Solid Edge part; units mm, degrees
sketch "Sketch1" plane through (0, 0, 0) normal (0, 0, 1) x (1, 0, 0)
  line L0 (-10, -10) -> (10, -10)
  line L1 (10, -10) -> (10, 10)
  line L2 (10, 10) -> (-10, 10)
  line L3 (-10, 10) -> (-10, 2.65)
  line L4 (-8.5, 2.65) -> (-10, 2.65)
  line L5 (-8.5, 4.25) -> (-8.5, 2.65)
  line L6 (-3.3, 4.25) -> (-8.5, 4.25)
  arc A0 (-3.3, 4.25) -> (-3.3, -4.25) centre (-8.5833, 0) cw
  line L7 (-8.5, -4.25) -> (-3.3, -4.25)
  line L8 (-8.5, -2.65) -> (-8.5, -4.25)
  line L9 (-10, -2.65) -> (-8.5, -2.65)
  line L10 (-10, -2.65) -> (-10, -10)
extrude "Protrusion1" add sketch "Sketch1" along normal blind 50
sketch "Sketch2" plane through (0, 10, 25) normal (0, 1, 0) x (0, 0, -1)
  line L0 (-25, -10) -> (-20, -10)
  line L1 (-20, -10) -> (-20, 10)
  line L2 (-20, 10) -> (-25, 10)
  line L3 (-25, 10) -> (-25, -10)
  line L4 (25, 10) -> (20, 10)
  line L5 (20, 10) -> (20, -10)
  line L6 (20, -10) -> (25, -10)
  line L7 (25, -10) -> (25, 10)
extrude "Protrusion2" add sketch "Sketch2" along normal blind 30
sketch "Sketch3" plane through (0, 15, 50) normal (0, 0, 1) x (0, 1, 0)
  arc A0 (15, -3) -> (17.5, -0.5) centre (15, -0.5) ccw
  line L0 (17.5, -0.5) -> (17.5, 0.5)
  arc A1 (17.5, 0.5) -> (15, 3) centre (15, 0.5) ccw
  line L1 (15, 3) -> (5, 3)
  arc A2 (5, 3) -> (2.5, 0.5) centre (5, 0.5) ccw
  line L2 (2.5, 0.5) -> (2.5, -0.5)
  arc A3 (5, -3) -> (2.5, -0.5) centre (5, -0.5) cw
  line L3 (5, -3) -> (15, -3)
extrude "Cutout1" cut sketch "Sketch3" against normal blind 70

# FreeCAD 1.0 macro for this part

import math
import FreeCAD as App
import Part
import Sketcher
from FreeCAD import Vector


def add_polygon(sketch, points):
    """Adds a closed chain of lines whose ends are joined by coincident constraints."""
    first, n = sketch.GeometryCount, len(points)
    for a, b in zip(points, points[1:] + points[:1]):
        sketch.addGeometry(Part.LineSegment(App.Vector(*a, 0), App.Vector(*b, 0)), False)
    for i in range(n):
        sketch.addConstraint(Sketcher.Constraint("Coincident", first + i, 2, first + (i + 1) % n, 1))

doc = App.newDocument("Part")
body = doc.addObject("PartDesign::Body", "Body")

sketch1 = doc.addObject("Sketcher::SketchObject", "Sketch")
body.addObject(sketch1)
sketch1.AttachmentSupport = (doc.XY_Plane, [""])
sketch1.MapMode = "FlatFace"
sketch1.addGeometry(Part.LineSegment(Vector(-10, -2.6, 0), Vector(-10, -10, 0)), False)
sketch1.addGeometry(Part.LineSegment(Vector(-10, -10, 0), Vector(10, -10, 0)), False)
sketch1.addGeometry(Part.LineSegment(Vector(10, -10, 0), Vector(10, 10, 0)), False)
sketch1.addGeometry(Part.LineSegment(Vector(10, 10, 0), Vector(-10, 10, 0)), False)
sketch1.addGeometry(Part.LineSegment(Vector(-10, 10, 0), Vector(-10, 2.6, 0)), False)
sketch1.addGeometry(Part.LineSegment(Vector(-10, 2.6, 0), Vector(-8.5, 2.6, 0)), False)
sketch1.addGeometry(Part.LineSegment(Vector(-8.5, 2.6, 0), Vector(-8.5, 4.2, 0)), False)
sketch1.addGeometry(Part.LineSegment(Vector(-8.5, 4.2, 0), Vector(-3.3, 4.2, 0)), False)
sketch1.addGeometry(Part.ArcOfCircle(Part.Circle(Vector(-8.6, 0, 0), Vector(0, 0, 1), 6.8), math.radians(-39), math.radians(39)), False)
sketch1.addGeometry(Part.LineSegment(Vector(-3.3, -4.2, 0), Vector(-8.5, -4.2, 0)), False)
sketch1.addGeometry(Part.LineSegment(Vector(-8.5, -4.2, 0), Vector(-8.5, -2.6, 0)), False)
sketch1.addGeometry(Part.LineSegment(Vector(-8.5, -2.6, 0), Vector(-10, -2.6, 0)), False)
sketch1.addConstraint(Sketcher.Constraint("Coincident", 0, 2, 1, 1))
sketch1.addConstraint(Sketcher.Constraint("Coincident", 1, 2, 2, 1))
sketch1.addConstraint(Sketcher.Constraint("Coincident", 2, 2, 3, 1))
sketch1.addConstraint(Sketcher.Constraint("Coincident", 3, 2, 4, 1))
sketch1.addConstraint(Sketcher.Constraint("Coincident", 4, 2, 5, 1))
sketch1.addConstraint(Sketcher.Constraint("Coincident", 5, 2, 6, 1))
sketch1.addConstraint(Sketcher.Constraint("Coincident", 6, 2, 7, 1))
sketch1.addConstraint(Sketcher.Constraint("Coincident", 7, 2, 8, 2))
sketch1.addConstraint(Sketcher.Constraint("Coincident", 8, 1, 9, 1))
sketch1.addConstraint(Sketcher.Constraint("Coincident", 9, 2, 10, 1))
sketch1.addConstraint(Sketcher.Constraint("Coincident", 10, 2, 11, 1))
sketch1.addConstraint(Sketcher.Constraint("Coincident", 11, 2, 0, 1))
sketch1.addConstraint(Sketcher.Constraint("Vertical", 0))
sketch1.addConstraint(Sketcher.Constraint("Horizontal", 1))
sketch1.addConstraint(Sketcher.Constraint("Vertical", 2))
sketch1.addConstraint(Sketcher.Constraint("Horizontal", 3))
sketch1.addConstraint(Sketcher.Constraint("Vertical", 4))
sketch1.addConstraint(Sketcher.Constraint("Horizontal", 5))
sketch1.addConstraint(Sketcher.Constraint("Vertical", 6))
sketch1.addConstraint(Sketcher.Constraint("Horizontal", 7))
sketch1.addConstraint(Sketcher.Constraint("Horizontal", 9))
sketch1.addConstraint(Sketcher.Constraint("Vertical", 10))
sketch1.addConstraint(Sketcher.Constraint("Horizontal", 11))
sketch1.addConstraint(Sketcher.Constraint("Symmetric", 0, 2, 2, 2, -1, 1))
sketch1.addConstraint(Sketcher.Constraint("Symmetric", 7, 2, 8, 1, -1))
sketch1.addConstraint(Sketcher.Constraint("Symmetric", 5, 2, 10, 2, -1))
sketch1.addConstraint(Sketcher.Constraint("Vertical", 0, 2, 3, 2))
sketch1.addConstraint(Sketcher.Constraint("Equal", 3, 2))
sketch1.addConstraint(Sketcher.Constraint("DistanceX", 1, 1, 1, 2, 20.0))
sketch1.addConstraint(Sketcher.Constraint("DistanceX", 5, 1, 5, 2, 1.5))
sketch1.addConstraint(Sketcher.Constraint("DistanceX", 7, 1, 7, 2, 5.2))
sketch1.addConstraint(Sketcher.Constraint("DistanceY", 6, 1, 6, 2, 1.6))
sketch1.addConstraint(Sketcher.Constraint("DistanceY", 0, 2, 0, 1, 7.35))
sketch1.addConstraint(Sketcher.Constraint("Radius", 8, 6.7805))
pad1 = doc.addObject("PartDesign::Pad", "Pad")
body.addObject(pad1)
pad1.Profile = sketch1
pad1.Length = 50

sketch2 = doc.addObject("Sketcher::SketchObject", "Sketch001")
body.addObject(sketch2)
sketch2.AttachmentSupport = (doc.XZ_Plane, [""])
sketch2.MapMode = "FlatFace"
sketch2.AttachmentOffset = App.Placement(Vector(0, 0, -10), App.Rotation())
add_polygon(sketch2, [(-10, 50), (10, 50), (10, 45), (-10, 45)])
add_polygon(sketch2, [(10, 0), (-10, 0), (-10, 5), (10, 5)])
sketch2.addConstraint(Sketcher.Constraint("Horizontal", 0))
sketch2.addConstraint(Sketcher.Constraint("Vertical", 1))
sketch2.addConstraint(Sketcher.Constraint("Horizontal", 2))
sketch2.addConstraint(Sketcher.Constraint("Vertical", 3))
sketch2.addConstraint(Sketcher.Constraint("Horizontal", 4))
sketch2.addConstraint(Sketcher.Constraint("Vertical", 5))
sketch2.addConstraint(Sketcher.Constraint("Horizontal", 6))
sketch2.addConstraint(Sketcher.Constraint("Vertical", 7))
sketch2.addConstraint(Sketcher.Constraint("Symmetric", 4, 2, 7, 2, -1, 1))
sketch2.addConstraint(Sketcher.Constraint("Vertical", 3, 2, 4, 2))
sketch2.addConstraint(Sketcher.Constraint("Vertical", 1, 2, 6, 2))
sketch2.addConstraint(Sketcher.Constraint("Equal", 3, 5))
sketch2.addConstraint(Sketcher.Constraint("DistanceX", 0, 1, 0, 2, 20.0))
sketch2.addConstraint(Sketcher.Constraint("DistanceY", 1, 2, 1, 1, 5.0))
sketch2.addConstraint(Sketcher.Constraint("DistanceY", -1, 1, 0, 2, 50.0))
pad2 = doc.addObject("PartDesign::Pad", "Pad001")
body.addObject(pad2)
pad2.Profile = sketch2
pad2.Length = 30
pad2.Reversed = True

sketch3 = doc.addObject("Sketcher::SketchObject", "Sketch002")
body.addObject(sketch3)
sketch3.AttachmentSupport = (doc.XY_Plane, [""])
sketch3.MapMode = "FlatFace"
sketch3.AttachmentOffset = App.Placement(Vector(0, 0, 50), App.Rotation())
sketch3.addGeometry(Part.LineSegment(Vector(3, 20, 0), Vector(3, 30, 0)), False)
sketch3.addGeometry(Part.ArcOfCircle(Part.Circle(Vector(0.5, 30, 0), Vector(0, 0, 1), 2.5), math.radians(0), math.radians(90)), False)
sketch3.addGeometry(Part.LineSegment(Vector(0.5, 32.5, 0), Vector(-0.5, 32.5, 0)), False)
sketch3.addGeometry(Part.ArcOfCircle(Part.Circle(Vector(-0.5, 30, 0), Vector(0, 0, 1), 2.5), math.radians(90), math.radians(180)), False)
sketch3.addGeometry(Part.LineSegment(Vector(-3, 30, 0), Vector(-3, 20, 0)), False)
sketch3.addGeometry(Part.ArcOfCircle(Part.Circle(Vector(-0.5, 20, 0), Vector(0, 0, 1), 2.5), math.radians(180), math.radians(270)), False)
sketch3.addGeometry(Part.LineSegment(Vector(-0.5, 17.5, 0), Vector(0.5, 17.5, 0)), False)
sketch3.addGeometry(Part.ArcOfCircle(Part.Circle(Vector(0.5, 20, 0), Vector(0, 0, 1), 2.5), math.radians(-90), math.radians(0)), False)
sketch3.addConstraint(Sketcher.Constraint("Tangent", 0, 2, 1, 1))
sketch3.addConstraint(Sketcher.Constraint("Tangent", 1, 2, 2, 1))
sketch3.addConstraint(Sketcher.Constraint("Tangent", 2, 2, 3, 1))
sketch3.addConstraint(Sketcher.Constraint("Tangent", 3, 2, 4, 1))
sketch3.addConstraint(Sketcher.Constraint("Tangent", 4, 2, 5, 1))
sketch3.addConstraint(Sketcher.Constraint("Tangent", 5, 2, 6, 1))
sketch3.addConstraint(Sketcher.Constraint("Tangent", 6, 2, 7, 1))
sketch3.addConstraint(Sketcher.Constraint("Tangent", 7, 2, 0, 1))
sketch3.addConstraint(Sketcher.Constraint("Vertical", 0))
sketch3.addConstraint(Sketcher.Constraint("Horizontal", 2))
sketch3.addConstraint(Sketcher.Constraint("Vertical", 4))
sketch3.addConstraint(Sketcher.Constraint("Horizontal", 6))
sketch3.addConstraint(Sketcher.Constraint("Equal", 1, 3))
sketch3.addConstraint(Sketcher.Constraint("Equal", 3, 5))
sketch3.addConstraint(Sketcher.Constraint("Equal", 5, 7))
sketch3.addConstraint(Sketcher.Constraint("Radius", 1, 2.5))
sketch3.addConstraint(Sketcher.Constraint("DistanceX", 2, 2, 2, 1, 1.0))
sketch3.addConstraint(Sketcher.Constraint("DistanceY", 0, 1, 0, 2, 10.0))
sketch3.addConstraint(Sketcher.Constraint("DistanceY", -1, 1, 1, 3, 30.0))
sketch3.addConstraint(Sketcher.Constraint("DistanceX", -1, 1, 0, 2, 3.0))
pocket1 = doc.addObject("PartDesign::Pocket", "Pocket")
body.addObject(pocket1)
pocket1.Profile = sketch3
pocket1.Length = 70

doc.recompute()
